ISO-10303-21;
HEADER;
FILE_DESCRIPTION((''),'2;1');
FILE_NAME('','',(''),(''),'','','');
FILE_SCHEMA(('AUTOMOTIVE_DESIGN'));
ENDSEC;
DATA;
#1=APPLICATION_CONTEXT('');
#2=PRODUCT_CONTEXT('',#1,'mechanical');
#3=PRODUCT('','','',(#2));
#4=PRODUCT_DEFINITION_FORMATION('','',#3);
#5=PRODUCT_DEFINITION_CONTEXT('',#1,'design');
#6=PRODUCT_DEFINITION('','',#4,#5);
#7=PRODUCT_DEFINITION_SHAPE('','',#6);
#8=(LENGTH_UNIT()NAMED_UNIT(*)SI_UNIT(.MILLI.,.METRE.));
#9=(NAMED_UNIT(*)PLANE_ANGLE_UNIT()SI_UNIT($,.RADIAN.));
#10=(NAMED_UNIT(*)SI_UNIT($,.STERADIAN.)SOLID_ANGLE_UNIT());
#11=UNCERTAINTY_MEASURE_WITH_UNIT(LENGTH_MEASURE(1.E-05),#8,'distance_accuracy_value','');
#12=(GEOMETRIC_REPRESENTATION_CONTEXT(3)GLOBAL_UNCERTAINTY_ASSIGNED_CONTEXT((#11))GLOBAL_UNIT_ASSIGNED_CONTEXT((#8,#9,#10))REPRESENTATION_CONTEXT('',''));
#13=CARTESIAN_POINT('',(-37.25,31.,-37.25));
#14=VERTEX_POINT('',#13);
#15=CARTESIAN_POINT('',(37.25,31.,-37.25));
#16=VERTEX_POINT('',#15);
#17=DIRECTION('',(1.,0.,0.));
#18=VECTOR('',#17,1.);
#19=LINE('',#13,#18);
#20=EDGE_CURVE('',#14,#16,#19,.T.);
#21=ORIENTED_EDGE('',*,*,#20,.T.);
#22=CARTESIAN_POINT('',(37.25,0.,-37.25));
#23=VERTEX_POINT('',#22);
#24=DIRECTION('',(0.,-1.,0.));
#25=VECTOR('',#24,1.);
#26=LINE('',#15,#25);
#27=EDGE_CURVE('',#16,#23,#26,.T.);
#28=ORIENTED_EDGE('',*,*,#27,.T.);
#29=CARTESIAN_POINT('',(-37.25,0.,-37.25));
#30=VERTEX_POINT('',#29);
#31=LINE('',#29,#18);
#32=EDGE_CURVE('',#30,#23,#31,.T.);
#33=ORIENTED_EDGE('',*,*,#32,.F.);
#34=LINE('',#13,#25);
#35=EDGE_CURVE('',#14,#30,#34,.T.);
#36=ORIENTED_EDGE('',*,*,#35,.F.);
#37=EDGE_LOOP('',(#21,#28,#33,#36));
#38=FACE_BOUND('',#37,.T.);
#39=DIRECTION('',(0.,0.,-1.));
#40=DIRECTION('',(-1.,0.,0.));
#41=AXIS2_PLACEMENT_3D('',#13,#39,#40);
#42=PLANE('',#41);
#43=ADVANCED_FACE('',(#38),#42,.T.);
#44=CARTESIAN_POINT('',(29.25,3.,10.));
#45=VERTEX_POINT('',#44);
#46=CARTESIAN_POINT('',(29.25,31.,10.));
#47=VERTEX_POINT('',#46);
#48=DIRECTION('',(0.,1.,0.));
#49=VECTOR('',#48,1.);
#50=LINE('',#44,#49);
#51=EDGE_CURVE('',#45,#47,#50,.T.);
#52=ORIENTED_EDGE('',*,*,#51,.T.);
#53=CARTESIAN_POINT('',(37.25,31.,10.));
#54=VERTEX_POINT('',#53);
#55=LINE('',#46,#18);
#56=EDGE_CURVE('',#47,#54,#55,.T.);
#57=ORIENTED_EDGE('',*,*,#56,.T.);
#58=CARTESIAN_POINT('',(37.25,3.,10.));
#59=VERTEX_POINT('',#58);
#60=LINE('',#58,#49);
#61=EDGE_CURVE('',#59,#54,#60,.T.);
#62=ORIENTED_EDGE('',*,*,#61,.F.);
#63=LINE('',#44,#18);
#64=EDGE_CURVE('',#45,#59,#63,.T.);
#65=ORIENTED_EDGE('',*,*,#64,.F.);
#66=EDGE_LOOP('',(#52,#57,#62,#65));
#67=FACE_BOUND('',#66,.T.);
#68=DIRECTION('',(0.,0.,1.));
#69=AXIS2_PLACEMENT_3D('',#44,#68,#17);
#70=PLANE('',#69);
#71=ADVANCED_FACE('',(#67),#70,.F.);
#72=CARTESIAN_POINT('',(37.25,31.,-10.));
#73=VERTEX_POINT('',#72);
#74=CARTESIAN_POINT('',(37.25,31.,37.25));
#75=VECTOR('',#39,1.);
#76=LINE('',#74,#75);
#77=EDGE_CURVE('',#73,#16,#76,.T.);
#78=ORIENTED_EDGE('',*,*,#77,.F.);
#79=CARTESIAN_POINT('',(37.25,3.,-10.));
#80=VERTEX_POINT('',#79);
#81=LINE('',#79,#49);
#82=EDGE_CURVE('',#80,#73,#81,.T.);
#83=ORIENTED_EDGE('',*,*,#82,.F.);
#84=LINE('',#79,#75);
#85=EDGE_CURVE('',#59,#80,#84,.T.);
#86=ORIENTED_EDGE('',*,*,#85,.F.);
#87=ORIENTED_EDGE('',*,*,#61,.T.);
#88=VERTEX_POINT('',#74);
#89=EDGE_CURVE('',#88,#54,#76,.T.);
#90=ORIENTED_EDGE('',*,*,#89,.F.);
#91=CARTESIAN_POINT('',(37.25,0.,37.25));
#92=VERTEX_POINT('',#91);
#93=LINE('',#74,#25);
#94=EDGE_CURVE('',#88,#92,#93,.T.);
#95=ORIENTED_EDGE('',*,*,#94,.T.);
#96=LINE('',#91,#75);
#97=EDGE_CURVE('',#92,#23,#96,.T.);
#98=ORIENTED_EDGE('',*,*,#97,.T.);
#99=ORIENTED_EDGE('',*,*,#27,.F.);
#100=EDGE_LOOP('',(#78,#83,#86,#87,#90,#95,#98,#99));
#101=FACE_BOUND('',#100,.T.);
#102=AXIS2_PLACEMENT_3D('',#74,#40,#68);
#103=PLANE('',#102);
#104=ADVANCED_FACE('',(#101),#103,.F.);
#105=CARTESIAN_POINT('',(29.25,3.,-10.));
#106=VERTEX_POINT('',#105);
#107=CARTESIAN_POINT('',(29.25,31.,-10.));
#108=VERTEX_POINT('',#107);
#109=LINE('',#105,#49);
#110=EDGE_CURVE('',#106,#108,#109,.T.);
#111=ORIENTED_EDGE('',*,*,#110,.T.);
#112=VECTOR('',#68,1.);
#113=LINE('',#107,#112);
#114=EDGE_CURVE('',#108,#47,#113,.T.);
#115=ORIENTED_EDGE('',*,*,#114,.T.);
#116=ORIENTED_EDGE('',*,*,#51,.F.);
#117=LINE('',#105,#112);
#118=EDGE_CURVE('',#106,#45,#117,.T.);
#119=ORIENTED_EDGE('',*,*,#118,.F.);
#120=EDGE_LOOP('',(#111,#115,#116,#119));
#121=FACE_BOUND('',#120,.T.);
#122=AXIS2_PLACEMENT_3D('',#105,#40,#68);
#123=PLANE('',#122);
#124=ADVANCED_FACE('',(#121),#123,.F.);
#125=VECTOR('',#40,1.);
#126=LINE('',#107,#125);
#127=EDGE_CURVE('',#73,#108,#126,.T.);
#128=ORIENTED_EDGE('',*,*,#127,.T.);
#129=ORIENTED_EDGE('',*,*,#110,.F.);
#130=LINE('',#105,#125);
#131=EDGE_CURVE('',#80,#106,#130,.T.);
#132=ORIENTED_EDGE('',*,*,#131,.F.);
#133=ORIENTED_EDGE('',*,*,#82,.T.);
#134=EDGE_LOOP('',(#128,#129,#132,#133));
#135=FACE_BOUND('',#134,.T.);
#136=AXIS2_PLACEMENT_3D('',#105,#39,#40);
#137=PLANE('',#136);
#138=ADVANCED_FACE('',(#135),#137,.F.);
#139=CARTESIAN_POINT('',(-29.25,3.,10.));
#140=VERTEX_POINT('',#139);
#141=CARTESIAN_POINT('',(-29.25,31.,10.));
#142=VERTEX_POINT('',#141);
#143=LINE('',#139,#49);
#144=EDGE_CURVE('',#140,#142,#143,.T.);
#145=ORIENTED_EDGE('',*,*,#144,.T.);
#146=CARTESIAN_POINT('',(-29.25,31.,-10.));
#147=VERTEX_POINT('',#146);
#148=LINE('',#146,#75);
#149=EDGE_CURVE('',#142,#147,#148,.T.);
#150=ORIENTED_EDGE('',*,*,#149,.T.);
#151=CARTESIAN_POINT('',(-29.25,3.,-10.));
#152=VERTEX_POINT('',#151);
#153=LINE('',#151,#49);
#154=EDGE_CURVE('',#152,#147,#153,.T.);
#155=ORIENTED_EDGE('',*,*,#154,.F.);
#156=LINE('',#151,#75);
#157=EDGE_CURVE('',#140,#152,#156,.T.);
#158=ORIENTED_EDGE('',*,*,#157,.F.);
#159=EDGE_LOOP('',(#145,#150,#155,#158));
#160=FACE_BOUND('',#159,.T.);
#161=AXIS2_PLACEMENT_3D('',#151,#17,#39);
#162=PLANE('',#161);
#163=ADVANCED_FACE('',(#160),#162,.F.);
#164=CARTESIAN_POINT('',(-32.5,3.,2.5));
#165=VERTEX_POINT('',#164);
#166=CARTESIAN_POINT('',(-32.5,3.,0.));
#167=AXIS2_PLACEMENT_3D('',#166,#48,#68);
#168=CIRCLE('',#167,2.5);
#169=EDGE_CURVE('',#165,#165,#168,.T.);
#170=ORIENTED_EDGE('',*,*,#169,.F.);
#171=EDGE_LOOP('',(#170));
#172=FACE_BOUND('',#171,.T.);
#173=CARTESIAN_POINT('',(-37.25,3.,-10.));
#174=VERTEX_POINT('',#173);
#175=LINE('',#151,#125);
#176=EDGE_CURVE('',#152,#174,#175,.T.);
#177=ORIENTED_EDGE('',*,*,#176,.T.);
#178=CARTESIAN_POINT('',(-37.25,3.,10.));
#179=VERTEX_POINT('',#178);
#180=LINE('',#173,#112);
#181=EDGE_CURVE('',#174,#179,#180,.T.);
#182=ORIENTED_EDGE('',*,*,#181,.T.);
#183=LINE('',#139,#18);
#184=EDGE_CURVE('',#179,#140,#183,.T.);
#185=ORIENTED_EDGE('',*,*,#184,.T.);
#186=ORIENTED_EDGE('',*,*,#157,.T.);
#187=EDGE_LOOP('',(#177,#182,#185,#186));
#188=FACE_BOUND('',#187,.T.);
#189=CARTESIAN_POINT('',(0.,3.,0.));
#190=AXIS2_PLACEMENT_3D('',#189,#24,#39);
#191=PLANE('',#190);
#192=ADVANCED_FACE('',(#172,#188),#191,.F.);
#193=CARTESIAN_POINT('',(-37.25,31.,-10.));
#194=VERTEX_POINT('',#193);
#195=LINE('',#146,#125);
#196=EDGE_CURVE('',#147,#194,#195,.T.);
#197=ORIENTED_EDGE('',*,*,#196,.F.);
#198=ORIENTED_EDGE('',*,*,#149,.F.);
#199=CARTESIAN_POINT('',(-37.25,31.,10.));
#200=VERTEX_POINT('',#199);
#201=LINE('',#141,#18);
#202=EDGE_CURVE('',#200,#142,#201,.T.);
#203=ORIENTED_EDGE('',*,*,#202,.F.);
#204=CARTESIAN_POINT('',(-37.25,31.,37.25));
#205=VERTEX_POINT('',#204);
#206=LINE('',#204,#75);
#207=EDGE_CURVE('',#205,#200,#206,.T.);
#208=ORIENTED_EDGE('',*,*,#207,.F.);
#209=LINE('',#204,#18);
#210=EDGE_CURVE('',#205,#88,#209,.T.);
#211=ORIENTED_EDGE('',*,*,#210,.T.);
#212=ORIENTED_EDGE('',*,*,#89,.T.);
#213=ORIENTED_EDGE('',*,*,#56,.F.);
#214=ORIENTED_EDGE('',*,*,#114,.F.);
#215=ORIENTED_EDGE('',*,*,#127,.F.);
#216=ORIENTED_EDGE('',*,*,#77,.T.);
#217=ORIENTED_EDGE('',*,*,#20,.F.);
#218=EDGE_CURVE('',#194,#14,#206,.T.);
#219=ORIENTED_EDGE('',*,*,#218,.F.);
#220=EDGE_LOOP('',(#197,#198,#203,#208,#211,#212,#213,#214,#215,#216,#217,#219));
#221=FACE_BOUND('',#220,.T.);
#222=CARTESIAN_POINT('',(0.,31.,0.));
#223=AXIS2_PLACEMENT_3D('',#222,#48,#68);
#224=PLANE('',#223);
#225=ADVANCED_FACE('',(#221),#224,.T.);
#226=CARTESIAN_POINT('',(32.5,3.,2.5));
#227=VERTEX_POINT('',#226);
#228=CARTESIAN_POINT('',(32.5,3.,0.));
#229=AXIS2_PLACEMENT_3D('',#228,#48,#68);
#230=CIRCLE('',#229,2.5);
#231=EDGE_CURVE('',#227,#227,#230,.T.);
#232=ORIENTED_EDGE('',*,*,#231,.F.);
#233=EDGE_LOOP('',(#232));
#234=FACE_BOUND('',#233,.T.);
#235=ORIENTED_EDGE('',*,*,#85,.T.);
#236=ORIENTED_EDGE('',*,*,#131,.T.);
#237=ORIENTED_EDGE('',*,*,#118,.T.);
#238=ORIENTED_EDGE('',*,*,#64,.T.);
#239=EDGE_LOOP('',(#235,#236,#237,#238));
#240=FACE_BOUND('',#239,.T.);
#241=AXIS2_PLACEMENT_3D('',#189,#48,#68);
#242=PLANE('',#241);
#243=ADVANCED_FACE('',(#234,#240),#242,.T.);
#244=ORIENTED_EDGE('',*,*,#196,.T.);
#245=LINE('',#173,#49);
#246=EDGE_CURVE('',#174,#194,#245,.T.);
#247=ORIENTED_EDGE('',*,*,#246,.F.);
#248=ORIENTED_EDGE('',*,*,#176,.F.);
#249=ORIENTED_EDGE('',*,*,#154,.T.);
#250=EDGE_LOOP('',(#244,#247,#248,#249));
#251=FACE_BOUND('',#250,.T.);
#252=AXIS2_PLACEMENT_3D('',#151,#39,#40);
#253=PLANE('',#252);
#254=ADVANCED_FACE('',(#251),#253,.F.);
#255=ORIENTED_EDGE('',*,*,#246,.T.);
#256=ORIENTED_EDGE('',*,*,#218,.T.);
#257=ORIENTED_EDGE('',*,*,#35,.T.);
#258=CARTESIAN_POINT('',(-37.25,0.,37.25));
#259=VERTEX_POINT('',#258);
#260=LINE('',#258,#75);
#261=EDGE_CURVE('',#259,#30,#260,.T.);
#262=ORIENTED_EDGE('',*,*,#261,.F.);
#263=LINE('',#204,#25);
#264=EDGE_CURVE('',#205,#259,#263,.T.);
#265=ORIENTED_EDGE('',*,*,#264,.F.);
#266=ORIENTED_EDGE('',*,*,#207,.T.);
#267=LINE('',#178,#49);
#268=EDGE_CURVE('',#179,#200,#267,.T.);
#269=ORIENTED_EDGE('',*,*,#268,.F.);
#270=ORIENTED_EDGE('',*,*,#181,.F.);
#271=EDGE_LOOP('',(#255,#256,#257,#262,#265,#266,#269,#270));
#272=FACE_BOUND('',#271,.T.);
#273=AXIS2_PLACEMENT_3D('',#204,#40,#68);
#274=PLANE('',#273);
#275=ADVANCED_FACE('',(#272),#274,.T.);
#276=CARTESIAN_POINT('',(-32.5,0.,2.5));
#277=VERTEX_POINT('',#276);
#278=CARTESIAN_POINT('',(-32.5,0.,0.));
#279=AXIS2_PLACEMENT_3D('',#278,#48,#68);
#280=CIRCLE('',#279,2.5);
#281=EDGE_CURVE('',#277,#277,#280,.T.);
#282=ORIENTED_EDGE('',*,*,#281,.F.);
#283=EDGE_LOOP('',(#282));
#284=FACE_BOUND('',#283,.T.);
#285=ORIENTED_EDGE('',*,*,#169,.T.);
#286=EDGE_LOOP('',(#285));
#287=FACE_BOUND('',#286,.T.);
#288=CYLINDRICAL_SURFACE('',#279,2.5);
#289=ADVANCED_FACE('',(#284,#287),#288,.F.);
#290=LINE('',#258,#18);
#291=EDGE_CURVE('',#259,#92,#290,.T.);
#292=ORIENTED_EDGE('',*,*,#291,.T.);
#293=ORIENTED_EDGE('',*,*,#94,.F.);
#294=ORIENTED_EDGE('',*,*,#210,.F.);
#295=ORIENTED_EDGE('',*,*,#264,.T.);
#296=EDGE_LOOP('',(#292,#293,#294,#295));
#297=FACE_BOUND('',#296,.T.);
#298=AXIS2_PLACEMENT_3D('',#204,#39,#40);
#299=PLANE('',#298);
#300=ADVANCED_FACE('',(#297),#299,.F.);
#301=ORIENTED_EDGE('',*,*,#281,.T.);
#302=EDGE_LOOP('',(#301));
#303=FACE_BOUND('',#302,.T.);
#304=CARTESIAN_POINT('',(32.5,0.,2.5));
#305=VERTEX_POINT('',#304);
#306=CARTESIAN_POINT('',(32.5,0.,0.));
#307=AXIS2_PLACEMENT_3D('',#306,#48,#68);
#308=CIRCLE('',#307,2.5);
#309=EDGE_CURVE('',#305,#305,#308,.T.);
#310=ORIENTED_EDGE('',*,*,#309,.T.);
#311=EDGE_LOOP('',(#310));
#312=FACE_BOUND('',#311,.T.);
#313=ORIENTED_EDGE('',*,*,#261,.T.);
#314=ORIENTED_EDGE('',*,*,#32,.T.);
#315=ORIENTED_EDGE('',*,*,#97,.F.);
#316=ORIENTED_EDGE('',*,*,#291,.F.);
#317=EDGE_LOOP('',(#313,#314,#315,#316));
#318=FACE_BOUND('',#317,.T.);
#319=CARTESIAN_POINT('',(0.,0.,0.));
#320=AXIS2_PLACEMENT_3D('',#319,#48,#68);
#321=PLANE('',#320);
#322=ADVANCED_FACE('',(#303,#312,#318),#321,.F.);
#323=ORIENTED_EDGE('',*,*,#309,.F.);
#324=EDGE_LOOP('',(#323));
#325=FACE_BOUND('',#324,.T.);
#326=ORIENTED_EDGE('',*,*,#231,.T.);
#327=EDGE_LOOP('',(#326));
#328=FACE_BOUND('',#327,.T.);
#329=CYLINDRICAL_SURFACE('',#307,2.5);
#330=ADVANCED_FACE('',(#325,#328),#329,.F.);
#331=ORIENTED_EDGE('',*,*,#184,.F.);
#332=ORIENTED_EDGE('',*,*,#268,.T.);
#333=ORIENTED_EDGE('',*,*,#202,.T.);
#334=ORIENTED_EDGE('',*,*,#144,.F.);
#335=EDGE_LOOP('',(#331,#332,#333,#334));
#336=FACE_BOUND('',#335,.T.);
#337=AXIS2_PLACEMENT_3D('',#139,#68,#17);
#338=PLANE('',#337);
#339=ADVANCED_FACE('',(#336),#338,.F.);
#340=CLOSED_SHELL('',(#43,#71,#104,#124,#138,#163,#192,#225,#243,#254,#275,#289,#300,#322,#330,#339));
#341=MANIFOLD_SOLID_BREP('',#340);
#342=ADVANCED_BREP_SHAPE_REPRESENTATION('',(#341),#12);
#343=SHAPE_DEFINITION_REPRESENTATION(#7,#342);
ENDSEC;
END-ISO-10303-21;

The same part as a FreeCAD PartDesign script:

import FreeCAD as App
import Part
import Sketcher
Q = App.Units.Quantity

doc = App.newDocument("Part")
body = doc.addObject("PartDesign::Body", "Body")

sketch1 = body.newObject("Sketcher::SketchObject", "Sketch")
sketch1.AttachmentSupport = (doc.getObject("XZ_Plane"), [""])
sketch1.MapMode = "FlatFace"
sketch1.addGeometry([
    Part.LineSegment(App.Vector(-37, -37, 0), App.Vector(-37, 37, 0)),
    Part.LineSegment(App.Vector(-37, 37, 0), App.Vector(37, 37, 0)),
    Part.LineSegment(App.Vector(37, 37, 0), App.Vector(37, -37, 0)),
    Part.LineSegment(App.Vector(37, -37, 0), App.Vector(-37, -37, 0)),
], False)
sketch1.addConstraint([
    Sketcher.Constraint("Coincident", 0, 2, 1, 1),
    Sketcher.Constraint("Coincident", 1, 2, 2, 1),
    Sketcher.Constraint("Coincident", 2, 2, 3, 1),
    Sketcher.Constraint("Coincident", 3, 2, 0, 1),
    Sketcher.Constraint("Vertical", 0),
    Sketcher.Constraint("Horizontal", 1),
    Sketcher.Constraint("Vertical", 2),
    Sketcher.Constraint("Horizontal", 3),
    Sketcher.Constraint("Symmetric", 0, 2, 2, 2, -1, 1),
    Sketcher.Constraint("Equal", 3, 0),
    Sketcher.Constraint("DistanceX", 1, 1, 1, 2, Q("74.5 mm")),
])
pad1 = body.newObject("PartDesign::Pad", "Pad")
pad1.Profile = sketch1
pad1.Length = 31
pad1.Reversed = True

sketch2 = body.newObject("Sketcher::SketchObject", "Sketch001")
sketch2.AttachmentSupport = (doc.getObject("XZ_Plane"), [""])
sketch2.MapMode = "FlatFace"
sketch2.AttachmentOffset = App.Placement(App.Vector(0, 0, -31), App.Rotation())
sketch2.addGeometry([
    Part.LineSegment(App.Vector(-37, -10, 0), App.Vector(-37, 10, 0)),
    Part.LineSegment(App.Vector(-37, 10, 0), App.Vector(-29, 10, 0)),
    Part.LineSegment(App.Vector(-29, 10, 0), App.Vector(-29, -10, 0)),
    Part.LineSegment(App.Vector(-29, -10, 0), App.Vector(-37, -10, 0)),
    Part.LineSegment(App.Vector(29, -10, 0), App.Vector(29, 10, 0)),
    Part.LineSegment(App.Vector(29, 10, 0), App.Vector(37, 10, 0)),
    Part.LineSegment(App.Vector(37, 10, 0), App.Vector(37, -10, 0)),
    Part.LineSegment(App.Vector(37, -10, 0), App.Vector(29, -10, 0)),
], False)
sketch2.addConstraint([
    Sketcher.Constraint("Coincident", 0, 2, 1, 1),
    Sketcher.Constraint("Coincident", 1, 2, 2, 1),
    Sketcher.Constraint("Coincident", 2, 2, 3, 1),
    Sketcher.Constraint("Coincident", 3, 2, 0, 1),
    Sketcher.Constraint("Coincident", 4, 2, 5, 1),
    Sketcher.Constraint("Coincident", 5, 2, 6, 1),
    Sketcher.Constraint("Coincident", 6, 2, 7, 1),
    Sketcher.Constraint("Coincident", 7, 2, 4, 1),
    Sketcher.Constraint("Vertical", 0),
    Sketcher.Constraint("Horizontal", 1),
    Sketcher.Constraint("Vertical", 2),
    Sketcher.Constraint("Horizontal", 3),
    Sketcher.Constraint("Vertical", 4),
    Sketcher.Constraint("Horizontal", 5),
    Sketcher.Constraint("Vertical", 6),
    Sketcher.Constraint("Horizontal", 7),
    Sketcher.Constraint("Symmetric", 2, 2, 4, 2, -1, 1),
    Sketcher.Constraint("Symmetric", 0, 2, 6, 2, -1, 1),
    Sketcher.Constraint("Horizontal", 1, 2, 4, 2),
    Sketcher.Constraint("DistanceX", 1, 1, 1, 2, Q("8 mm")),
    Sketcher.Constraint("DistanceY", 0, 1, 0, 2, Q("20 mm")),
    Sketcher.Constraint("DistanceX", 1, 2, 4, 2, Q("58.5 mm")),
])
pocket1 = body.newObject("PartDesign::Pocket", "Pocket")
pocket1.Profile = sketch2
pocket1.Length = 28
pocket1.Reversed = True

sketch3 = body.newObject("Sketcher::SketchObject", "Sketch002")
sketch3.AttachmentSupport = (doc.getObject("XZ_Plane"), [""])
sketch3.MapMode = "FlatFace"
sketch3.AttachmentOffset = App.Placement(App.Vector(0, 0, -3), App.Rotation())
sketch3.addGeometry([
    Part.Circle(App.Vector(-32.5, 0, 0), App.Vector(0, 0, 1), 2.5),
    Part.Circle(App.Vector(32.5, 0, 0), App.Vector(0, 0, 1), 2.5),
], False)
sketch3.addConstraint([
    Sketcher.Constraint("Equal", 0, 1),
    Sketcher.Constraint("Symmetric", 0, 3, 1, 3, -1, 1),
    Sketcher.Constraint("PointOnObject", 0, 3, -1),
    Sketcher.Constraint("Diameter", 0, Q("5 mm")),
    Sketcher.Constraint("DistanceX", 0, 3, 1, 3, Q("65 mm")),
])
pocket2 = body.newObject("PartDesign::Pocket", "Pocket001")
pocket2.Profile = sketch3
pocket2.Type = "ThroughAll"
pocket2.Reversed = True

doc.recompute()
